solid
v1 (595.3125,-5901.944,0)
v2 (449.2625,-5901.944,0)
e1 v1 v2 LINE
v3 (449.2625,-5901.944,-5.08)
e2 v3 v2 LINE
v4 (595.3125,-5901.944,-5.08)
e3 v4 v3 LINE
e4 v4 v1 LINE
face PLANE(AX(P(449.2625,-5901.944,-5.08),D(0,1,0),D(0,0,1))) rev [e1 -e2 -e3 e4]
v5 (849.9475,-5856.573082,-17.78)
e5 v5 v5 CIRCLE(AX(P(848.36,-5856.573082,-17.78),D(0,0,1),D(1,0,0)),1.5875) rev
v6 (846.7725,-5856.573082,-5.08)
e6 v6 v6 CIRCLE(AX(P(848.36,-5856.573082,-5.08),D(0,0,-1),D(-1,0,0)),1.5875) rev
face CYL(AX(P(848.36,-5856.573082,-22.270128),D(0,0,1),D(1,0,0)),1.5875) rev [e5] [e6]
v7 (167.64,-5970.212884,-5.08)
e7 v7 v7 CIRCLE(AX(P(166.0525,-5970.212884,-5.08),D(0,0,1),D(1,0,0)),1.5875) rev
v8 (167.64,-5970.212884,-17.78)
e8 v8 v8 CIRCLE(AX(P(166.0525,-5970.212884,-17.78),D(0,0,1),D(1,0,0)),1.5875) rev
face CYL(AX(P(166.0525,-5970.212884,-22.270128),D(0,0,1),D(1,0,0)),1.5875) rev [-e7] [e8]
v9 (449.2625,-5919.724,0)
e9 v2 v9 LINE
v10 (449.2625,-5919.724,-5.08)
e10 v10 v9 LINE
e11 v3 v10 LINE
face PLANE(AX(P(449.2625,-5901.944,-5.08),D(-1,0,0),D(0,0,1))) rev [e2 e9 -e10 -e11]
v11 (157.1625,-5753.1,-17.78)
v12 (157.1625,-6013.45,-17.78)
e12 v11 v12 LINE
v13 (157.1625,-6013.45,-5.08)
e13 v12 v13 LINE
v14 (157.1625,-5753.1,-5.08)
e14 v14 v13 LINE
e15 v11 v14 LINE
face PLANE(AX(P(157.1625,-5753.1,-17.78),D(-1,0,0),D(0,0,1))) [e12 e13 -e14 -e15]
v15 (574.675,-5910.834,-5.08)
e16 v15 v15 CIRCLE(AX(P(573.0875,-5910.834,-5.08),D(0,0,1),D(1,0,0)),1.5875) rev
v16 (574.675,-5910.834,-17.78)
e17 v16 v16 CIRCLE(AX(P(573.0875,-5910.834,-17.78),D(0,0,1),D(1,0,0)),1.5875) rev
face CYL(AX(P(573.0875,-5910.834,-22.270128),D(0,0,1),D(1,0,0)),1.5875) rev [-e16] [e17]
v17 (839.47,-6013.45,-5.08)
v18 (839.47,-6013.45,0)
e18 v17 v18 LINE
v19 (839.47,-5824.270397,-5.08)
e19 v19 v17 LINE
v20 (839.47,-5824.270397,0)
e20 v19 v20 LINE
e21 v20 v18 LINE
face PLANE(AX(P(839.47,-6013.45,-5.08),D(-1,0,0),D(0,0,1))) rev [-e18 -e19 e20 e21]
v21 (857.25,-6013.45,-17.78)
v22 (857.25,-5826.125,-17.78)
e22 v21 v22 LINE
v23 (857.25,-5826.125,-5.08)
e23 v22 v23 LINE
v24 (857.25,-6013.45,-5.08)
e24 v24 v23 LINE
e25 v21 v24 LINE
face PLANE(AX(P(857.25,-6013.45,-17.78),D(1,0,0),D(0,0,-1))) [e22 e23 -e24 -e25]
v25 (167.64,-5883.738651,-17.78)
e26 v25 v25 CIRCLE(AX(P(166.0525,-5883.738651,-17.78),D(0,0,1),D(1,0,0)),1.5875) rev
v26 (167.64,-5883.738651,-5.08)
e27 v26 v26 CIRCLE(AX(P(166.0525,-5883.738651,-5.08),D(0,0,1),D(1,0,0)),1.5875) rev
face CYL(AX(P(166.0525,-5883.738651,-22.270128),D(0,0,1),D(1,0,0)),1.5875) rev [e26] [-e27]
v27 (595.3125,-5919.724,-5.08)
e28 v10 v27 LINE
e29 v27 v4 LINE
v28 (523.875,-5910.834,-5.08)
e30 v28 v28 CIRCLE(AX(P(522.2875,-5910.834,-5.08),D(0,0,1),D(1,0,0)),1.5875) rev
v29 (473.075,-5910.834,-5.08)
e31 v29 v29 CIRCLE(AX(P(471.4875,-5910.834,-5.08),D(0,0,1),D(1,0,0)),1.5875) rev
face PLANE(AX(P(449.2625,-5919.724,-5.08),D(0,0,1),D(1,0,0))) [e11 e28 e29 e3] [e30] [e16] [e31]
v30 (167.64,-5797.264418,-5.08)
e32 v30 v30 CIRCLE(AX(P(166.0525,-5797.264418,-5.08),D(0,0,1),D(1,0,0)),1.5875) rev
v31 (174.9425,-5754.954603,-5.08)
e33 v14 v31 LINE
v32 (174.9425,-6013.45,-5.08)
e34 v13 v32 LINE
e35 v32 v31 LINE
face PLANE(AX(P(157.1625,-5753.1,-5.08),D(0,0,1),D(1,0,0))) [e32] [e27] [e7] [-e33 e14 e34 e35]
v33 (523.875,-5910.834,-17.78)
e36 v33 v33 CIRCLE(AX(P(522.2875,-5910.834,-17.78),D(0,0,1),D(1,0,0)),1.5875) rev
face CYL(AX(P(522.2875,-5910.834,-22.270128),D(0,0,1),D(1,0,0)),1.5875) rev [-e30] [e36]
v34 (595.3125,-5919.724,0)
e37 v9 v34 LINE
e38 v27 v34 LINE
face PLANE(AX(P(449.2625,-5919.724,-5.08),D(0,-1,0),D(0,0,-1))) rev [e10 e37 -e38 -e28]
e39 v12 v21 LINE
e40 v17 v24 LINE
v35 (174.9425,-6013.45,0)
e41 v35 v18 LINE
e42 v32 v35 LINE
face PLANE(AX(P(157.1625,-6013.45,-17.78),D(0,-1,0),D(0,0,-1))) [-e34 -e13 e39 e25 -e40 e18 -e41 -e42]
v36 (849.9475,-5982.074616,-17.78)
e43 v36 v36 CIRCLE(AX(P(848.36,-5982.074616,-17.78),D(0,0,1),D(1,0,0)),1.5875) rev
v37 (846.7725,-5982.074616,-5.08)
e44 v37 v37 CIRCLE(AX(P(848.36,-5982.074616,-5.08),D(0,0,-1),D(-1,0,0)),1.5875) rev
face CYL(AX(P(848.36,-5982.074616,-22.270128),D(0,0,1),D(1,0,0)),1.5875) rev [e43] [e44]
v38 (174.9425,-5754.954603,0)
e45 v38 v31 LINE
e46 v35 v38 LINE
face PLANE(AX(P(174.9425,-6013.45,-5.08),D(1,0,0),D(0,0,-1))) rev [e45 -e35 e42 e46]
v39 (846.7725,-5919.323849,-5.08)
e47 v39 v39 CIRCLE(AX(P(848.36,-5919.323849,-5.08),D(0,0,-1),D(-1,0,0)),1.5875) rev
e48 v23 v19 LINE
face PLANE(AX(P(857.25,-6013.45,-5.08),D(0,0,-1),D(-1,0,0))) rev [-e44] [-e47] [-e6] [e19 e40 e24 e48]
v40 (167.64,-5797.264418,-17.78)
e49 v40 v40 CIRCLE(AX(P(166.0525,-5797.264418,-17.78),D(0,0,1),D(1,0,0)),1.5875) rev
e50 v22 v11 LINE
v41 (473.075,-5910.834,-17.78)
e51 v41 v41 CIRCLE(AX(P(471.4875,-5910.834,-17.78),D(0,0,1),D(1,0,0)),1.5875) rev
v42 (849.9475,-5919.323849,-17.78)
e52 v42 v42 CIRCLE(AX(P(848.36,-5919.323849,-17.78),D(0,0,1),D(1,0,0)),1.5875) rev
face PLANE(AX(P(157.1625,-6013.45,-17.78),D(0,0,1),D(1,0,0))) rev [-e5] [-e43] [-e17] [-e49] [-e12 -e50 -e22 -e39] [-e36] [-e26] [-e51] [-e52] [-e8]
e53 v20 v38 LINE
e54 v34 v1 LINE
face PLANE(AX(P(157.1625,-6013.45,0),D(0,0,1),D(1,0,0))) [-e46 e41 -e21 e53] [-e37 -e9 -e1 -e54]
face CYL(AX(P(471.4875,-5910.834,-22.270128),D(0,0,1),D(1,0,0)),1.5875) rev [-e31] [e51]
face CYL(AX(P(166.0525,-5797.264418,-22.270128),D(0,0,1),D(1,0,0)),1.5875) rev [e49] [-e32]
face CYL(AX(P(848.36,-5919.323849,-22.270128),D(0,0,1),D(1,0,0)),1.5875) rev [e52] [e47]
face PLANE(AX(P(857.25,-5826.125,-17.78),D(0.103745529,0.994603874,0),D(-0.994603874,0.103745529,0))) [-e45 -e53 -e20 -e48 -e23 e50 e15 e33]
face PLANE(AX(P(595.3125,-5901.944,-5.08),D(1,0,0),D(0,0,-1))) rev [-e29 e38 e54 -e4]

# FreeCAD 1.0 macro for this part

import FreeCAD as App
import Part
import Sketcher
Q = App.Units.Quantity

doc = App.newDocument("Part")
body = doc.addObject("PartDesign::Body", "Body")

# Sketch on XY plane
sketch1 = body.newObject("Sketcher::SketchObject", "Sketch")
sketch1.AttachmentSupport = (doc.getObject("XY_Plane"), [""])
sketch1.MapMode = "FlatFace"
sketch1.addGeometry(Part.LineSegment(App.Vector(157, -6013, 0), App.Vector(857, -6013, 0)), False)
sketch1.addGeometry(Part.LineSegment(App.Vector(857, -6013, 0), App.Vector(857, -5826, 0)), False)
sketch1.addGeometry(Part.LineSegment(App.Vector(857, -5826, 0), App.Vector(157, -5753, 0)), False)
sketch1.addGeometry(Part.LineSegment(App.Vector(157, -5753, 0), App.Vector(157, -6013, 0)), False)
sketch1.addConstraint(Sketcher.Constraint("Coincident", 0, 2, 1, 1))
sketch1.addConstraint(Sketcher.Constraint("Coincident", 1, 2, 2, 1))
sketch1.addConstraint(Sketcher.Constraint("Coincident", 2, 2, 3, 1))
sketch1.addConstraint(Sketcher.Constraint("Coincident", 3, 2, 0, 1))
sketch1.addConstraint(Sketcher.Constraint("Horizontal", 0))
sketch1.addConstraint(Sketcher.Constraint("Vertical", 1))
sketch1.addConstraint(Sketcher.Constraint("Vertical", 3))
sketch1.addConstraint(Sketcher.Constraint("DistanceY", 3, 2, 3, 1, Q("10.25 in")))
sketch1.addConstraint(Sketcher.Constraint("DistanceY", 2, 2, -1, 1, Q("226.5 in")))
sketch1.addConstraint(Sketcher.Constraint("DistanceX", 0, 1, 0, 2, Q("27.5625 in")))
sketch1.addConstraint(Sketcher.Constraint("DistanceY", 1, 1, 1, 2, Q("7.375 in")))
sketch1.addConstraint(Sketcher.Constraint("DistanceX", -1, 1, 0, 2, Q("33.75 in")))
pad1 = body.newObject("PartDesign::Pad", "Pad")
pad1.Profile = sketch1
pad1.Length = Q("0.7 in")
pad1.Reversed = True

# Sketch on XY plane
sketch2 = body.newObject("Sketcher::SketchObject", "Sketch001")
sketch2.AttachmentSupport = (doc.getObject("XY_Plane"), [""])
sketch2.MapMode = "FlatFace"
sketch2.addGeometry(Part.Circle(App.Vector(166.1, -5970.2, 0), App.Vector(0, 0, 1), 1.6), False)
sketch2.addGeometry(Part.Circle(App.Vector(166.1, -5883.7, 0), App.Vector(0, 0, 1), 1.6), False)
sketch2.addGeometry(Part.Circle(App.Vector(166.1, -5797.3, 0), App.Vector(0, 0, 1), 1.6), False)
sketch2.addGeometry(Part.Circle(App.Vector(848.4, -5982.1, 0), App.Vector(0, 0, 1), 1.6), False)
sketch2.addGeometry(Part.Circle(App.Vector(848.4, -5919.3, 0), App.Vector(0, 0, 1), 1.6), False)
sketch2.addGeometry(Part.Circle(App.Vector(848.4, -5856.6, 0), App.Vector(0, 0, 1), 1.6), False)
sketch2.addGeometry(Part.Circle(App.Vector(471.5, -5910.8, 0), App.Vector(0, 0, 1), 1.6), False)
sketch2.addGeometry(Part.Circle(App.Vector(522.3, -5910.8, 0), App.Vector(0, 0, 1), 1.6), False)
sketch2.addGeometry(Part.Circle(App.Vector(573.1, -5910.8, 0), App.Vector(0, 0, 1), 1.6), False)
sketch2.addConstraint(Sketcher.Constraint("Equal", 0, 1))
sketch2.addConstraint(Sketcher.Constraint("Equal", 1, 2))
sketch2.addConstraint(Sketcher.Constraint("Equal", 2, 3))
sketch2.addConstraint(Sketcher.Constraint("Equal", 3, 4))
sketch2.addConstraint(Sketcher.Constraint("Equal", 4, 5))
sketch2.addConstraint(Sketcher.Constraint("Equal", 5, 6))
sketch2.addConstraint(Sketcher.Constraint("Equal", 6, 7))
sketch2.addConstraint(Sketcher.Constraint("Equal", 7, 8))
sketch2.addConstraint(Sketcher.Constraint("Horizontal", 6, 3, 7, 3))
sketch2.addConstraint(Sketcher.Constraint("Horizontal", 7, 3, 8, 3))
sketch2.addConstraint(Sketcher.Constraint("Vertical", 0, 3, 1, 3))
sketch2.addConstraint(Sketcher.Constraint("Vertical", 1, 3, 2, 3))
sketch2.addConstraint(Sketcher.Constraint("Vertical", 3, 3, 4, 3))
sketch2.addConstraint(Sketcher.Constraint("Vertical", 4, 3, 5, 3))
sketch2.addConstraint(Sketcher.Constraint("Diameter", 0, Q("0.125 in")))
sketch2.addConstraint(Sketcher.Constraint("DistanceX", 6, 3, 7, 3, Q("2 in")))
sketch2.addConstraint(Sketcher.Constraint("DistanceX", 7, 3, 8, 3, Q("2 in")))
sketch2.addConstraint(Sketcher.Constraint("DistanceX", -1, 1, 3, 3, Q("33.4 in")))
sketch2.addConstraint(Sketcher.Constraint("DistanceY", 6, 3, -1, 1, Q("232.71 in")))
sketch2.addConstraint(Sketcher.Constraint("DistanceX", -1, 1, 6, 3, Q("18.5625 in")))
sketch2.addConstraint(Sketcher.Constraint("DistanceX", 1, 3, 6, 3, Q("12.025 in")))
sketch2.addConstraint(Sketcher.Constraint("DistanceY", 3, 3, 2, 3, Q("184.810198 mm")))
sketch2.addConstraint(Sketcher.Constraint("DistanceY", 4, 3, 1, 3, Q("35.585198 mm")))
sketch2.addConstraint(Sketcher.Constraint("DistanceY", 0, 3, 5, 3, Q("113.639802 mm")))
sketch2.addConstraint(Sketcher.Constraint("DistanceY", 1, 3, -1, 1, Q("5883.738651 mm")))
sketch2.addConstraint(Sketcher.Constraint("DistanceY", 4, 3, 2, 3, Q("122.059431 mm")))
sketch2.addConstraint(Sketcher.Constraint("DistanceY", 1, 3, 5, 3, Q("27.165569 mm")))
pocket1 = body.newObject("PartDesign::Pocket", "Pocket")
pocket1.Profile = sketch2
pocket1.Length = Q("0.7 in")

# Sketch on XY plane
sketch3 = body.newObject("Sketcher::SketchObject", "Sketch002")
sketch3.AttachmentSupport = (doc.getObject("XY_Plane"), [""])
sketch3.MapMode = "FlatFace"
sketch3.addGeometry(Part.LineSegment(App.Vector(157, -5753, 0), App.Vector(157, -6013, 0)), False)
sketch3.addGeometry(Part.LineSegment(App.Vector(157, -6013, 0), App.Vector(175, -6013, 0)), False)
sketch3.addGeometry(Part.LineSegment(App.Vector(175, -6013, 0), App.Vector(175, -5753, 0)), False)
sketch3.addGeometry(Part.LineSegment(App.Vector(175, -5753, 0), App.Vector(157, -5753, 0)), False)
sketch3.addGeometry(Part.LineSegment(App.Vector(839, -5824, 0), App.Vector(839, -6013, 0)), False)
sketch3.addGeometry(Part.LineSegment(App.Vector(839, -6013, 0), App.Vector(857, -6013, 0)), False)
sketch3.addGeometry(Part.LineSegment(App.Vector(857, -6013, 0), App.Vector(857, -5824, 0)), False)
sketch3.addGeometry(Part.LineSegment(App.Vector(857, -5824, 0), App.Vector(839, -5824, 0)), False)
sketch3.addGeometry(Part.LineSegment(App.Vector(449, -5902, 0), App.Vector(449, -5920, 0)), False)
sketch3.addGeometry(Part.LineSegment(App.Vector(449, -5920, 0), App.Vector(595, -5920, 0)), False)
sketch3.addGeometry(Part.LineSegment(App.Vector(595, -5920, 0), App.Vector(595, -5902, 0)), False)
sketch3.addGeometry(Part.LineSegment(App.Vector(595, -5902, 0), App.Vector(449, -5902, 0)), False)
sketch3.addConstraint(Sketcher.Constraint("Coincident", 0, 2, 1, 1))
sketch3.addConstraint(Sketcher.Constraint("Coincident", 1, 2, 2, 1))
sketch3.addConstraint(Sketcher.Constraint("Coincident", 2, 2, 3, 1))
sketch3.addConstraint(Sketcher.Constraint("Coincident", 3, 2, 0, 1))
sketch3.addConstraint(Sketcher.Constraint("Coincident", 4, 2, 5, 1))
sketch3.addConstraint(Sketcher.Constraint("Coincident", 5, 2, 6, 1))
sketch3.addConstraint(Sketcher.Constraint("Coincident", 6, 2, 7, 1))
sketch3.addConstraint(Sketcher.Constraint("Coincident", 7, 2, 4, 1))
sketch3.addConstraint(Sketcher.Constraint("Coincident", 8, 2, 9, 1))
sketch3.addConstraint(Sketcher.Constraint("Coincident", 9, 2, 10, 1))
sketch3.addConstraint(Sketcher.Constraint("Coincident", 10, 2, 11, 1))
sketch3.addConstraint(Sketcher.Constraint("Coincident", 11, 2, 8, 1))
sketch3.addConstraint(Sketcher.Constraint("Vertical", 0))
sketch3.addConstraint(Sketcher.Constraint("Horizontal", 1))
sketch3.addConstraint(Sketcher.Constraint("Vertical", 2))
sketch3.addConstraint(Sketcher.Constraint("Horizontal", 3))
sketch3.addConstraint(Sketcher.Constraint("Vertical", 4))
sketch3.addConstraint(Sketcher.Constraint("Horizontal", 5))
sketch3.addConstraint(Sketcher.Constraint("Vertical", 6))
sketch3.addConstraint(Sketcher.Constraint("Horizontal", 7))
sketch3.addConstraint(Sketcher.Constraint("Vertical", 8))
sketch3.addConstraint(Sketcher.Constraint("Horizontal", 9))
sketch3.addConstraint(Sketcher.Constraint("Vertical", 10))
sketch3.addConstraint(Sketcher.Constraint("Horizontal", 11))
sketch3.addConstraint(Sketcher.Constraint("Horizontal", 1, 2, 4, 2))
sketch3.addConstraint(Sketcher.Constraint("Equal", 3, 5))
sketch3.addConstraint(Sketcher.Constraint("Equal", 7, 8))
sketch3.addConstraint(Sketcher.Constraint("DistanceX", 1, 1, 1, 2, Q("0.7 in")))
sketch3.addConstraint(Sketcher.Constraint("DistanceX", 9, 1, 9, 2, Q("5.75 in")))
sketch3.addConstraint(Sketcher.Constraint("DistanceY", 0, 2, 0, 1, Q("10.25 in")))
sketch3.addConstraint(Sketcher.Constraint("DistanceY", 2, 2, -1, 1, Q("226.5 in")))
sketch3.addConstraint(Sketcher.Constraint("DistanceX", 1, 2, 8, 2, Q("10.8 in")))
sketch3.addConstraint(Sketcher.Constraint("DistanceX", -1, 1, 4, 2, Q("33.05 in")))
sketch3.addConstraint(Sketcher.Constraint("DistanceY", 8, 2, -1, 1, Q("233.06 in")))
sketch3.addConstraint(Sketcher.Constraint("DistanceX", -1, 1, 0, 2, Q("6.1875 in")))
sketch3.addConstraint(Sketcher.Constraint("DistanceY", 4, 2, 4, 1, Q("189.179603 mm")))
pocket2 = body.newObject("PartDesign::Pocket", "Pocket001")
pocket2.Profile = sketch3
pocket2.Length = Q("0.2 in")

doc.recompute()
